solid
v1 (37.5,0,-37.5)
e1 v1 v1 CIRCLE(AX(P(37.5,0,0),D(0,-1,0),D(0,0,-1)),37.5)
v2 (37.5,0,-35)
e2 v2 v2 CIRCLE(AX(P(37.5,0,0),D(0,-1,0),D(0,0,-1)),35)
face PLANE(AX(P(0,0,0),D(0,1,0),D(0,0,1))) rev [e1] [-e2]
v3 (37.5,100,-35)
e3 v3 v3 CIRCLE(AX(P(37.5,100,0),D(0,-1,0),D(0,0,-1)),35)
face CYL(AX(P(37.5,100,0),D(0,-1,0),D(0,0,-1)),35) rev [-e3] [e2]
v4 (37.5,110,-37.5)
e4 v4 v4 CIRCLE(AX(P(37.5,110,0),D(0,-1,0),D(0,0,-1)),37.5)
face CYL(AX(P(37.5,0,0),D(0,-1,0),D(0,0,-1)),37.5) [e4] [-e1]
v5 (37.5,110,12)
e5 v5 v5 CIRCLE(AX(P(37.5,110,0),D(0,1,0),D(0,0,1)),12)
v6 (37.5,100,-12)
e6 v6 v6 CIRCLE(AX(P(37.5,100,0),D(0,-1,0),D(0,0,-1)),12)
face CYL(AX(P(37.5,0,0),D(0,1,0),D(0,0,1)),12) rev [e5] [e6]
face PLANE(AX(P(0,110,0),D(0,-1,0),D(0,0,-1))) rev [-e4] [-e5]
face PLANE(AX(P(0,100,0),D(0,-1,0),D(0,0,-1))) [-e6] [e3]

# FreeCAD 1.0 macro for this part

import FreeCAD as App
import Part
import Sketcher


def add_polygon(sketch, points):
    """Adds a closed chain of lines whose ends are joined by coincident constraints."""
    first, n = sketch.GeometryCount, len(points)
    for a, b in zip(points, points[1:] + points[:1]):
        sketch.addGeometry(Part.LineSegment(App.Vector(*a, 0), App.Vector(*b, 0)), False)
    for i in range(n):
        sketch.addConstraint(Sketcher.Constraint("Coincident", first + i, 2, first + (i + 1) % n, 1))

doc = App.newDocument("Part")
params = doc.addObject("Spreadsheet::Sheet", "Params")
for row, (alias, value) in enumerate([
    ("sketch1_height", "110 mm"),
    ("sketch1_width", "37.5 mm"),
    ("revolution_angle", "360 deg"),
    ("sketch2_diameter", "70 mm"),
    ("pocket1_length", "100 mm"),
    ("sketch3_diameter", "24 mm"),
], start=1):
    params.set(f"A{row}", alias)
    params.set(f"B{row}", "=" + value)
    params.setAlias(f"B{row}", alias)

body = doc.addObject("PartDesign::Body", "Body")

# Sketch on XY plane
sketch1 = doc.addObject("Sketcher::SketchObject", "Sketch")
body.addObject(sketch1)
sketch1.AttachmentSupport = (doc.XY_Plane, [""])
sketch1.MapMode = "FlatFace"
add_polygon(sketch1, [(0, 110), (0, 0), (38, 0), (38, 110)])  # lines 0-3
sketch1.addGeometry(Part.LineSegment(App.Vector(38, 0, 0), App.Vector(38, 110, 0)), True)  # axis
sketch1.addConstraint([
    Sketcher.Constraint("Vertical", 0),
    Sketcher.Constraint("Horizontal", 1),
    Sketcher.Constraint("Vertical", 2),
    Sketcher.Constraint("Horizontal", 3),
    Sketcher.Constraint("Vertical", 4),
    Sketcher.Constraint("Coincident", 0, 2, -1, 1),
    Sketcher.Constraint("Coincident", 4, 1, 1, 2),
    Sketcher.Constraint("Horizontal", 3, 2, 4, 2),
    Sketcher.Constraint("DistanceY", 0, 2, 0, 1, 110.0),
    Sketcher.Constraint("DistanceX", 1, 1, 1, 2, 37.5),
])
sketch1.setExpression("Constraints[12]", "Params.sketch1_height")
sketch1.setExpression("Constraints[13]", "Params.sketch1_width")
revolution = doc.addObject("PartDesign::Revolution", "Revolution")
body.addObject(revolution)
revolution.Profile = sketch1
revolution.ReferenceAxis = (sketch1, ["Axis0"])
revolution.setExpression("Angle", "Params.revolution_angle")

# Sketch on XZ plane
sketch2 = doc.addObject("Sketcher::SketchObject", "Sketch001")
body.addObject(sketch2)
sketch2.AttachmentSupport = (doc.XZ_Plane, [""])
sketch2.MapMode = "FlatFace"
sketch2.addGeometry(Part.Circle(App.Vector(38, 0, 0), App.Vector(0, 0, 1), 35), False)
sketch2.addConstraint([
    Sketcher.Constraint("PointOnObject", 0, 3, -1),
    Sketcher.Constraint("Diameter", 0, 70.0),
    Sketcher.Constraint("DistanceX", -1, 1, 0, 3, 37.5),
])
sketch2.setExpression("Constraints[1]", "Params.sketch2_diameter")
pocket1 = doc.addObject("PartDesign::Pocket", "Pocket")
body.addObject(pocket1)
pocket1.Profile = sketch2
pocket1.setExpression("Length", "Params.pocket1_length")

# Sketch on XZ plane
sketch3 = doc.addObject("Sketcher::SketchObject", "Sketch002")
body.addObject(sketch3)
sketch3.AttachmentSupport = (doc.XZ_Plane, [""])
sketch3.MapMode = "FlatFace"
sketch3.AttachmentOffset = App.Placement(App.Vector(0, 0, -110), App.Rotation())
sketch3.addGeometry(Part.Circle(App.Vector(38, 0, 0), App.Vector(0, 0, 1), 12), False)
sketch3.addConstraint([
    Sketcher.Constraint("PointOnObject", 0, 3, -1),
    Sketcher.Constraint("Diameter", 0, 24.0),
    Sketcher.Constraint("DistanceX", -1, 1, 0, 3, 37.5),
])
sketch3.setExpression("Constraints[1]", "Params.sketch3_diameter")
pocket2 = doc.addObject("PartDesign::Pocket", "Pocket001")
body.addObject(pocket2)
pocket2.Profile = sketch3
pocket2.Type = "ThroughAll"
pocket2.Reversed = True

doc.recompute()
